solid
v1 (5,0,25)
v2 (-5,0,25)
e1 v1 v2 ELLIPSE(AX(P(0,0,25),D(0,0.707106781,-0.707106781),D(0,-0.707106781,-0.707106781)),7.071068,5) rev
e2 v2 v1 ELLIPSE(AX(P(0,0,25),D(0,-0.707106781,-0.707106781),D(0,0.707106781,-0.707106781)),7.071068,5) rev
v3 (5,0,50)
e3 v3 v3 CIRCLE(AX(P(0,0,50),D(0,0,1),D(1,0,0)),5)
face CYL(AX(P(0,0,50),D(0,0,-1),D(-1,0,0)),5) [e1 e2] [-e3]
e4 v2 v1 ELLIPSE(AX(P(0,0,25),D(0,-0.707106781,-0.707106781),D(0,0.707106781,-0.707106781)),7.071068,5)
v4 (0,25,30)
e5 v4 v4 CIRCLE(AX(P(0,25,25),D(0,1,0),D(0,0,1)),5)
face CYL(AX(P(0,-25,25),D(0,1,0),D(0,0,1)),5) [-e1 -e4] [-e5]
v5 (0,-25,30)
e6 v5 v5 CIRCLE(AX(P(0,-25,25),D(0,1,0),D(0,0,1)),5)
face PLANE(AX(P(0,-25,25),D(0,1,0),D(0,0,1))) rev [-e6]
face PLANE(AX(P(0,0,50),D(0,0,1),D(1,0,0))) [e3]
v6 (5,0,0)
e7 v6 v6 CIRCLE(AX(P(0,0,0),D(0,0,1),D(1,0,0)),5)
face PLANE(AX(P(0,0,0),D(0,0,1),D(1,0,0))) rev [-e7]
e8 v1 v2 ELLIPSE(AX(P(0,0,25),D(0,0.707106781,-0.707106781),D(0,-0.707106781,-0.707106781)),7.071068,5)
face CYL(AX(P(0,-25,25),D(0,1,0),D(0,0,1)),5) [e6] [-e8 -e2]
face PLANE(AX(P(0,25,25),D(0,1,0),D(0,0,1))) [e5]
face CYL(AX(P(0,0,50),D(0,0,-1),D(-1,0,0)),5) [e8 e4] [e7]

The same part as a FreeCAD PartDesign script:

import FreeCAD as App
import Part
import Sketcher

V = App.Vector
Q = App.Units.Quantity

doc = App.newDocument("Part")
params = doc.addObject("Spreadsheet::Sheet", "Params")
for row, (alias, value) in enumerate([
    ("sketch1_diameter", "10 mm"),
    ("pad1_length", "50 mm"),
    ("sketch2_diameter", "10 mm"),
    ("pad2_length", "50 mm"),
], start=1):
    params.set(f"A{row}", alias)
    params.set(f"B{row}", "=" + value)
    params.setAlias(f"B{row}", alias)

body = doc.addObject("PartDesign::Body", "Body")

# Sketch on XY plane
sketch1 = doc.addObject("Sketcher::SketchObject", "Sketch")
body.addObject(sketch1)
sketch1.AttachmentSupport = (doc.XY_Plane, [""])
sketch1.MapMode = "FlatFace"
sketch1.addGeometry(Part.Circle(V(0, 0, 0), V(0, 0, 1), 5), False)
sketch1.addConstraint([
    Sketcher.Constraint("Coincident", 0, 3, -1, 1),
    Sketcher.Constraint("Diameter", 0, Q("10 mm")),
])
sketch1.setExpression("Constraints[1]", "Params.sketch1_diameter")
pad1 = doc.addObject("PartDesign::Pad", "Pad")
body.addObject(pad1)
pad1.Profile = sketch1
pad1.setExpression("Length", "Params.pad1_length")

# Sketch on XZ plane
sketch2 = doc.addObject("Sketcher::SketchObject", "Sketch001")
body.addObject(sketch2)
sketch2.AttachmentSupport = (doc.XZ_Plane, [""])
sketch2.MapMode = "FlatFace"
sketch2.AttachmentOffset = App.Placement(V(0, 0, -25), App.Rotation())
sketch2.addGeometry(Part.Circle(V(0, 25, 0), V(0, 0, 1), 5), False)
sketch2.addConstraint([
    Sketcher.Constraint("PointOnObject", 0, 3, -2),
    Sketcher.Constraint("Diameter", 0, Q("10 mm")),
    Sketcher.Constraint("DistanceY", -1, 1, 0, 3, Q("25 mm")),
])
sketch2.setExpression("Constraints[1]", "Params.sketch2_diameter")
pad2 = doc.addObject("PartDesign::Pad", "Pad001")
body.addObject(pad2)
pad2.Profile = sketch2
pad2.setExpression("Length", "Params.pad2_length")

doc.recompute()
